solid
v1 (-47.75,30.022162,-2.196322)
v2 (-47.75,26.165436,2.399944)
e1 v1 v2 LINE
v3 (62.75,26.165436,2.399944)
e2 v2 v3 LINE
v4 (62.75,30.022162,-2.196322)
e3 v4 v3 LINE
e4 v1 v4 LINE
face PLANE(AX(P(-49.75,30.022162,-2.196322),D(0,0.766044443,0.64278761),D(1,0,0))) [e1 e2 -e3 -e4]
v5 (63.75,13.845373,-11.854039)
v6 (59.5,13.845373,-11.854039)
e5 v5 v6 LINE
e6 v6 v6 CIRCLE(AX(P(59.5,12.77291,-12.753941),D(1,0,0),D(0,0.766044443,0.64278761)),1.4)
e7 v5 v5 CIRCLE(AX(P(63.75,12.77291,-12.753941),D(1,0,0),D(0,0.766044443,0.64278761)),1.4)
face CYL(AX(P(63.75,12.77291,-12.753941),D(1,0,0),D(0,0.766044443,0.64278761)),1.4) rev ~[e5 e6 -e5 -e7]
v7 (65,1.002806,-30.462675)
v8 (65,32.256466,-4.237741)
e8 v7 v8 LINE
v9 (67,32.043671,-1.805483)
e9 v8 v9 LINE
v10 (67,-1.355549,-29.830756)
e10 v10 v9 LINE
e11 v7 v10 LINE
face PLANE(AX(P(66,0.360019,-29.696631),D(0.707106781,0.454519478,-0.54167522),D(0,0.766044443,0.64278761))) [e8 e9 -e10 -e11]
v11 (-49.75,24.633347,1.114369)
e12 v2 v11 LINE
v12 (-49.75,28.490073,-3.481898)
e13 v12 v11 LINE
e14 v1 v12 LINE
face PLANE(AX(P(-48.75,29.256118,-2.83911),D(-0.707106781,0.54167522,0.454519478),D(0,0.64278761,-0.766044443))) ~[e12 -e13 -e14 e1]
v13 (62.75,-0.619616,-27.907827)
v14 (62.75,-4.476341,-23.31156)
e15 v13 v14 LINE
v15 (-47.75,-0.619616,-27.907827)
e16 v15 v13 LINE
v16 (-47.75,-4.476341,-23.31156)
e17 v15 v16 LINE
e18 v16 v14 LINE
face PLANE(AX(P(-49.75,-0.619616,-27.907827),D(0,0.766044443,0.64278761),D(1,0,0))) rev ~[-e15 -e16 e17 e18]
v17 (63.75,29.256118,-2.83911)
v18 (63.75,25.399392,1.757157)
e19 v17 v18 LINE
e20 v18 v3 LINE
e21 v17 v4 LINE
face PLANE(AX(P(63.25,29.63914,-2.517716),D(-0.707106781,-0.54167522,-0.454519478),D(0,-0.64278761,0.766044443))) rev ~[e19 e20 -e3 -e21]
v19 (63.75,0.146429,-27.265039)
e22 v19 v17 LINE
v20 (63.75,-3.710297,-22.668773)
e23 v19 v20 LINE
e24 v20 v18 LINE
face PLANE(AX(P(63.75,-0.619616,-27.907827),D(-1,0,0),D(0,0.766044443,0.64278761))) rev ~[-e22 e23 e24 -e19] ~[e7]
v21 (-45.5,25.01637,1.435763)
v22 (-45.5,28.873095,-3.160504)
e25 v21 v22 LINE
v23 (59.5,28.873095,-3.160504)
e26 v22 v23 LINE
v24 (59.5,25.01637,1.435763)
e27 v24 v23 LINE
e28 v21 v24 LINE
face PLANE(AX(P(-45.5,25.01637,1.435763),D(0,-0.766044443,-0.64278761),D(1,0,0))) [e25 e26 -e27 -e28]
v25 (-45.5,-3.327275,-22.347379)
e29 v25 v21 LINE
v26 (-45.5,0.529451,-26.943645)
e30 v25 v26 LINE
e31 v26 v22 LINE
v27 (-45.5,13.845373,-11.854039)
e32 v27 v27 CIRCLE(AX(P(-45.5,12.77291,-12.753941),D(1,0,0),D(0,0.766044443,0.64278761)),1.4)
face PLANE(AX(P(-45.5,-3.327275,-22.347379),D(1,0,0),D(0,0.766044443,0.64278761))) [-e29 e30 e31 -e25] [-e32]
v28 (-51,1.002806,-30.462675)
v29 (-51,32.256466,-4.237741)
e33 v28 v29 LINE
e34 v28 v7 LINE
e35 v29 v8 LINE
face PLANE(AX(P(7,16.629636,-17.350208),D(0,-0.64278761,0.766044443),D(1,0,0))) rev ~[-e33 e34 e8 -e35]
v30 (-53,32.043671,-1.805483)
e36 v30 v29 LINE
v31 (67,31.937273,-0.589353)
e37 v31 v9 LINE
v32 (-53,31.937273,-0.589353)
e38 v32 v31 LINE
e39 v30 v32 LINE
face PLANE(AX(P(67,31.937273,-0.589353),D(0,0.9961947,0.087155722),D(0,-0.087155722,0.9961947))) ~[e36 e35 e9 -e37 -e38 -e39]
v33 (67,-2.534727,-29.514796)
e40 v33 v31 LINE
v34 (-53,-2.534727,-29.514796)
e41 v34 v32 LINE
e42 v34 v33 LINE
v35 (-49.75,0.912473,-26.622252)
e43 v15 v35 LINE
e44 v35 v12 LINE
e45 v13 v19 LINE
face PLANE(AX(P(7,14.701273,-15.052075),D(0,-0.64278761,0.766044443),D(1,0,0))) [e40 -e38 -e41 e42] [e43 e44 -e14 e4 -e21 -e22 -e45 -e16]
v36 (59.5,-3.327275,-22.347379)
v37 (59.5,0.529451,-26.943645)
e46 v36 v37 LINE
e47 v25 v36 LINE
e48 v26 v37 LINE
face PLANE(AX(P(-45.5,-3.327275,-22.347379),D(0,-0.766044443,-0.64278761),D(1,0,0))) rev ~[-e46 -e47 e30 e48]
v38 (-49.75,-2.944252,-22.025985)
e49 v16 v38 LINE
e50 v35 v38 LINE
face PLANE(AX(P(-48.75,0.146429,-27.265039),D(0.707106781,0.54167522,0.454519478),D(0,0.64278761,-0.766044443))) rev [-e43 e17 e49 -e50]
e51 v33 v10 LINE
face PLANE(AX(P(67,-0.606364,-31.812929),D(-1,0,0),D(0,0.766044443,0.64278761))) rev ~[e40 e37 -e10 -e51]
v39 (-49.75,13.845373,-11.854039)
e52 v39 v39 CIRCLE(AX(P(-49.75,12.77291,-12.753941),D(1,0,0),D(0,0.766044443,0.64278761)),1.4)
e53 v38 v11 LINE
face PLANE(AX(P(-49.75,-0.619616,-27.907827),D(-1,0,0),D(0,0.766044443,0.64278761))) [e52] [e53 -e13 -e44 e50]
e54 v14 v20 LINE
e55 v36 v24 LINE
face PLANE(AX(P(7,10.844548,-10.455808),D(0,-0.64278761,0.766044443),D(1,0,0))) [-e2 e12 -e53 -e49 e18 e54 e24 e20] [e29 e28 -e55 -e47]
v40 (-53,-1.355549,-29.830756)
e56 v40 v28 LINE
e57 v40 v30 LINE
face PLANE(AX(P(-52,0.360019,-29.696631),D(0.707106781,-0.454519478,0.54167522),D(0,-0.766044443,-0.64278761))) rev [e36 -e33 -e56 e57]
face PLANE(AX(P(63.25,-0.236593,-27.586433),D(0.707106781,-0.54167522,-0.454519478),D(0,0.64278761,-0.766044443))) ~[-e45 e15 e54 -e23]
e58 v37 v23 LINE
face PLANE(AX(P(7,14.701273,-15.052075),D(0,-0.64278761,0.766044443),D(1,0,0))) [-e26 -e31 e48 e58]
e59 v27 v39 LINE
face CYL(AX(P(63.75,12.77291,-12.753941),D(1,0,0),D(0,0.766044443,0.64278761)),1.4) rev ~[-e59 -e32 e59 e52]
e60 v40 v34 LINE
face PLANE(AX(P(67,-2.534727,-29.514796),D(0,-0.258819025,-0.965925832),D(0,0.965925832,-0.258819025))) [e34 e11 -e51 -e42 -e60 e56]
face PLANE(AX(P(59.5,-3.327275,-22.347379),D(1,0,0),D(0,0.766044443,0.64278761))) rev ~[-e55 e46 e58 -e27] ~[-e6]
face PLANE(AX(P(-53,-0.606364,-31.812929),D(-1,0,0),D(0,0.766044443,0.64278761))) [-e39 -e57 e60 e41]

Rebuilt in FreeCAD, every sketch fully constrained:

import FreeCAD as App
import Part
import Sketcher
from FreeCAD import Vector
Q = App.Units.Quantity


def edges_at(feature, points):
    """Names of the edges that pass closest to the given points."""
    edges = feature.Shape.Edges
    near = lambda p: min(range(len(edges)), key=lambda i: edges[i].distToShape(Part.Vertex(*p))[0])
    return sorted({f"Edge{near(p) + 1}" for p in points})

doc = App.newDocument("Part")
body = doc.addObject("PartDesign::Body", "Body")

sketch1 = doc.addObject("Sketcher::SketchObject", "Sketch")
body.addObject(sketch1)
sketch1.AttachmentSupport = (doc.XZ_Plane, [""])
sketch1.MapMode = "FlatFace"
sketch1.addGeometry([
    Part.LineSegment(Vector(-60, 22.5, 0), Vector(-60, -22.5, 0)),
    Part.LineSegment(Vector(-60, -22.5, 0), Vector(60, -22.5, 0)),
    Part.LineSegment(Vector(60, -22.5, 0), Vector(60, 22.5, 0)),
    Part.LineSegment(Vector(60, 22.5, 0), Vector(-60, 22.5, 0)),
], False)
sketch1.addConstraint([
    Sketcher.Constraint("Coincident", 0, 2, 1, 1),
    Sketcher.Constraint("Coincident", 1, 2, 2, 1),
    Sketcher.Constraint("Coincident", 2, 2, 3, 1),
    Sketcher.Constraint("Coincident", 3, 2, 0, 1),
    Sketcher.Constraint("Vertical", 0),
    Sketcher.Constraint("Horizontal", 1),
    Sketcher.Constraint("Vertical", 2),
    Sketcher.Constraint("Horizontal", 3),
    Sketcher.Constraint("Symmetric", 0, 2, 2, 2, -1, 1),
    Sketcher.Constraint("DistanceX", 1, 1, 1, 2, Q("120 mm")),
    Sketcher.Constraint("DistanceY", 0, 2, 0, 1, Q("45 mm")),
])
pad1 = doc.addObject("PartDesign::Pad", "Pad")
body.addObject(pad1)
pad1.Profile = sketch1
pad1.Length = 3

sketch2 = doc.addObject("Sketcher::SketchObject", "Sketch001")
body.addObject(sketch2)
sketch2.AttachmentSupport = (doc.XZ_Plane, [""])
sketch2.MapMode = "FlatFace"
sketch2.AttachmentOffset = App.Placement(Vector(0, 0, 3), App.Rotation())
sketch2.addGeometry([
    Part.LineSegment(Vector(-56.75, 20, 0), Vector(-56.75, -20, 0)),
    Part.LineSegment(Vector(-56.75, -20, 0), Vector(56.75, -20, 0)),
    Part.LineSegment(Vector(56.75, -20, 0), Vector(56.75, 20, 0)),
    Part.LineSegment(Vector(56.75, 20, 0), Vector(-56.75, 20, 0)),
], False)
sketch2.addConstraint([
    Sketcher.Constraint("Coincident", 0, 2, 1, 1),
    Sketcher.Constraint("Coincident", 1, 2, 2, 1),
    Sketcher.Constraint("Coincident", 2, 2, 3, 1),
    Sketcher.Constraint("Coincident", 3, 2, 0, 1),
    Sketcher.Constraint("Vertical", 0),
    Sketcher.Constraint("Horizontal", 1),
    Sketcher.Constraint("Vertical", 2),
    Sketcher.Constraint("Horizontal", 3),
    Sketcher.Constraint("Symmetric", 0, 2, 2, 2, -1, 1),
    Sketcher.Constraint("DistanceY", 0, 2, 0, 1, Q("40 mm")),
    Sketcher.Constraint("DistanceX", 1, 1, 1, 2, Q("113.5 mm")),
])
pad2 = doc.addObject("PartDesign::Pad", "Pad001")
body.addObject(pad2)
pad2.Profile = sketch2
pad2.Length = 6

sketch3 = doc.addObject("Sketcher::SketchObject", "Sketch002")
body.addObject(sketch3)
sketch3.AttachmentSupport = (doc.YZ_Plane, [""])
sketch3.MapMode = "FlatFace"
sketch3.AttachmentOffset = App.Placement(Vector(0, 0, 56.75), App.Rotation())
sketch3.addGeometry(Part.Circle(Vector(-6, 0, 0), Vector(0, 0, 1), 1.4), False)
sketch3.addConstraint([
    Sketcher.Constraint("PointOnObject", 0, 3, -1),
    Sketcher.Constraint("Diameter", 0, Q("2.8 mm")),
    Sketcher.Constraint("DistanceX", 0, 3, -1, 1, Q("6 mm")),
])
pocket1 = doc.addObject("PartDesign::Pocket", "Pocket")
body.addObject(pocket1)
pocket1.Profile = sketch3
pocket1.Type = "ThroughAll"

sketch4 = doc.addObject("Sketcher::SketchObject", "Sketch003")
body.addObject(sketch4)
sketch4.AttachmentSupport = (doc.YZ_Plane, [""])
sketch4.MapMode = "FlatFace"
sketch4.AttachmentOffset = App.Placement(Vector(0, 0, 60), App.Rotation())
sketch4.addGeometry([
    Part.LineSegment(Vector(3.604533, -17.875456, 0), Vector(-3, -22.5, 0)),
    Part.LineSegment(Vector(-3, -22.5, 0), Vector(3.604533, -35.516254, 0)),
    Part.LineSegment(Vector(3.604533, -35.516254, 0), Vector(3.604533, -17.875456, 0)),
], False)
sketch4.addConstraint([
    Sketcher.Constraint("Coincident", 0, 2, 1, 1),
    Sketcher.Constraint("Coincident", 1, 2, 2, 1),
    Sketcher.Constraint("Coincident", 2, 2, 0, 1),
    Sketcher.Constraint("Vertical", 2),
    Sketcher.Constraint("Angle", 0, Q("-144.999999 deg")),
    Sketcher.Constraint("DistanceX", 0, 2, -1, 1, Q("3 mm")),
    Sketcher.Constraint("DistanceY", 0, 2, -1, 1, Q("22.5 mm")),
    Sketcher.Constraint("DistanceY", 2, 1, 2, 2, Q("17.640798 mm")),
    Sketcher.Constraint("Distance", 0, Q("8.062646 mm")),
])
pocket2 = doc.addObject("PartDesign::Pocket", "Pocket001")
body.addObject(pocket2)
pocket2.Profile = sketch4
pocket2.Type = "ThroughAll"
doc.recompute()

mirrored = doc.addObject("PartDesign::Mirrored", "Mirrored")
body.addObject(mirrored)
mirrored.Originals = [pocket2]
mirrored.MirrorPlane = (doc.XY_Plane, [""])
body.Tip = mirrored
doc.recompute()

chamfer = doc.addObject("PartDesign::Chamfer", "Chamfer")
body.addObject(chamfer)
chamfer.Base = (mirrored, edges_at(mirrored, [(60, 0, 0), (-60, 0, 0)]))
chamfer.Size = 2

sketch5 = doc.addObject("Sketcher::SketchObject", "Sketch004")
body.addObject(sketch5)
sketch5.AttachmentSupport = (doc.XZ_Plane, [""])
sketch5.MapMode = "FlatFace"
sketch5.AttachmentOffset = App.Placement(Vector(0, 0, 9), App.Rotation())
sketch5.addGeometry([
    Part.LineSegment(Vector(-52.5, 18.5, 0), Vector(-52.5, -18.5, 0)),
    Part.LineSegment(Vector(-52.5, -18.5, 0), Vector(52.5, -18.5, 0)),
    Part.LineSegment(Vector(52.5, -18.5, 0), Vector(52.5, 18.5, 0)),
    Part.LineSegment(Vector(52.5, 18.5, 0), Vector(-52.5, 18.5, 0)),
], False)
sketch5.addConstraint([
    Sketcher.Constraint("Coincident", 0, 2, 1, 1),
    Sketcher.Constraint("Coincident", 1, 2, 2, 1),
    Sketcher.Constraint("Coincident", 2, 2, 3, 1),
    Sketcher.Constraint("Coincident", 3, 2, 0, 1),
    Sketcher.Constraint("Vertical", 0),
    Sketcher.Constraint("Horizontal", 1),
    Sketcher.Constraint("Vertical", 2),
    Sketcher.Constraint("Horizontal", 3),
    Sketcher.Constraint("Symmetric", 0, 2, 2, 2, -1, 1),
    Sketcher.Constraint("DistanceX", 1, 1, 1, 2, Q("105 mm")),
    Sketcher.Constraint("DistanceY", 0, 2, 0, 1, Q("37 mm")),
])
pocket3 = doc.addObject("PartDesign::Pocket", "Pocket002")
body.addObject(pocket3)
pocket3.Profile = sketch5
pocket3.Length = 6
doc.recompute()

chamfer2 = doc.addObject("PartDesign::Chamfer", "Chamfer001")
body.addObject(chamfer2)
chamfer2.Base = (pocket3, edges_at(pocket3, [(-56.75, -6, -20)]))
chamfer2.Size = 2
doc.recompute()

chamfer3 = doc.addObject("PartDesign::Chamfer", "Chamfer002")
body.addObject(chamfer3)
chamfer3.Base = (chamfer2, edges_at(chamfer2, [(56.75, -6, -20)]))
chamfer3.Size = 1
doc.recompute()

chamfer4 = doc.addObject("PartDesign::Chamfer", "Chamfer003")
body.addObject(chamfer4)
chamfer4.Base = (chamfer3, edges_at(chamfer3, [(56.75, -6, 20)]))
chamfer4.Size = 1
doc.recompute()

chamfer5 = doc.addObject("PartDesign::Chamfer", "Chamfer004")
body.addObject(chamfer5)
chamfer5.Base = (chamfer4, edges_at(chamfer4, [(-56.75, -6, 20)]))
chamfer5.Size = 2
body2 = doc.addObject("PartDesign::Body", "Body001")
doc.recompute()

body.Placement = App.Placement(Vector(7, 16.629636, -17.350208), App.Rotation(Vector(-1, 0, 0), 50))
boolean = doc.addObject("PartDesign::Boolean", "Boolean")
body2.addObject(boolean)
boolean.Type = "Fuse"
boolean.addObjects([body])

doc.recompute()
